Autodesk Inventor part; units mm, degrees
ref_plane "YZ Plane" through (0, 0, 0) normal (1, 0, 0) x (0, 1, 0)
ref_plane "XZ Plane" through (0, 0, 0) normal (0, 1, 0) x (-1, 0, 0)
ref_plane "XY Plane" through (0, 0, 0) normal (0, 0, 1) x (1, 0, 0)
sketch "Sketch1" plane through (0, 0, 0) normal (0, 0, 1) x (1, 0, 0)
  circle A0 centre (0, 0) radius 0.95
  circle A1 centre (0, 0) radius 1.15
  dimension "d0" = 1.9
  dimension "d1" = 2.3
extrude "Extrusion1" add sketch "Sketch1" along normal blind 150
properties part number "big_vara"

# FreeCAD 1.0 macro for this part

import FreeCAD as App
import Part
import Sketcher
from FreeCAD import Vector
Q = App.Units.Quantity

doc = App.newDocument("Part")
body = doc.addObject("PartDesign::Body", "Body")

# Sketch on XY plane
sketch1 = body.newObject("Sketcher::SketchObject", "Sketch")
sketch1.AttachmentSupport = (doc.getObject("XY_Plane"), [""])
sketch1.MapMode = "FlatFace"
sketch1.addGeometry(Part.Circle(Vector(0, 0, 0), Vector(0, 0, 1), 1.15), False)
sketch1.addGeometry(Part.Circle(Vector(0, 0, 0), Vector(0, 0, 1), 0.95), False)
sketch1.addConstraint(Sketcher.Constraint("Coincident", 0, 3, -1, 1))
sketch1.addConstraint(Sketcher.Constraint("Coincident", 1, 3, -1, 1))
sketch1.addConstraint(Sketcher.Constraint("Diameter", 0, Q("2.3 mm")))
sketch1.addConstraint(Sketcher.Constraint("Diameter", 1, Q("1.9 mm")))
pad1 = body.newObject("PartDesign::Pad", "Pad")
pad1.Profile = sketch1
pad1.Length = 150

doc.recompute()
